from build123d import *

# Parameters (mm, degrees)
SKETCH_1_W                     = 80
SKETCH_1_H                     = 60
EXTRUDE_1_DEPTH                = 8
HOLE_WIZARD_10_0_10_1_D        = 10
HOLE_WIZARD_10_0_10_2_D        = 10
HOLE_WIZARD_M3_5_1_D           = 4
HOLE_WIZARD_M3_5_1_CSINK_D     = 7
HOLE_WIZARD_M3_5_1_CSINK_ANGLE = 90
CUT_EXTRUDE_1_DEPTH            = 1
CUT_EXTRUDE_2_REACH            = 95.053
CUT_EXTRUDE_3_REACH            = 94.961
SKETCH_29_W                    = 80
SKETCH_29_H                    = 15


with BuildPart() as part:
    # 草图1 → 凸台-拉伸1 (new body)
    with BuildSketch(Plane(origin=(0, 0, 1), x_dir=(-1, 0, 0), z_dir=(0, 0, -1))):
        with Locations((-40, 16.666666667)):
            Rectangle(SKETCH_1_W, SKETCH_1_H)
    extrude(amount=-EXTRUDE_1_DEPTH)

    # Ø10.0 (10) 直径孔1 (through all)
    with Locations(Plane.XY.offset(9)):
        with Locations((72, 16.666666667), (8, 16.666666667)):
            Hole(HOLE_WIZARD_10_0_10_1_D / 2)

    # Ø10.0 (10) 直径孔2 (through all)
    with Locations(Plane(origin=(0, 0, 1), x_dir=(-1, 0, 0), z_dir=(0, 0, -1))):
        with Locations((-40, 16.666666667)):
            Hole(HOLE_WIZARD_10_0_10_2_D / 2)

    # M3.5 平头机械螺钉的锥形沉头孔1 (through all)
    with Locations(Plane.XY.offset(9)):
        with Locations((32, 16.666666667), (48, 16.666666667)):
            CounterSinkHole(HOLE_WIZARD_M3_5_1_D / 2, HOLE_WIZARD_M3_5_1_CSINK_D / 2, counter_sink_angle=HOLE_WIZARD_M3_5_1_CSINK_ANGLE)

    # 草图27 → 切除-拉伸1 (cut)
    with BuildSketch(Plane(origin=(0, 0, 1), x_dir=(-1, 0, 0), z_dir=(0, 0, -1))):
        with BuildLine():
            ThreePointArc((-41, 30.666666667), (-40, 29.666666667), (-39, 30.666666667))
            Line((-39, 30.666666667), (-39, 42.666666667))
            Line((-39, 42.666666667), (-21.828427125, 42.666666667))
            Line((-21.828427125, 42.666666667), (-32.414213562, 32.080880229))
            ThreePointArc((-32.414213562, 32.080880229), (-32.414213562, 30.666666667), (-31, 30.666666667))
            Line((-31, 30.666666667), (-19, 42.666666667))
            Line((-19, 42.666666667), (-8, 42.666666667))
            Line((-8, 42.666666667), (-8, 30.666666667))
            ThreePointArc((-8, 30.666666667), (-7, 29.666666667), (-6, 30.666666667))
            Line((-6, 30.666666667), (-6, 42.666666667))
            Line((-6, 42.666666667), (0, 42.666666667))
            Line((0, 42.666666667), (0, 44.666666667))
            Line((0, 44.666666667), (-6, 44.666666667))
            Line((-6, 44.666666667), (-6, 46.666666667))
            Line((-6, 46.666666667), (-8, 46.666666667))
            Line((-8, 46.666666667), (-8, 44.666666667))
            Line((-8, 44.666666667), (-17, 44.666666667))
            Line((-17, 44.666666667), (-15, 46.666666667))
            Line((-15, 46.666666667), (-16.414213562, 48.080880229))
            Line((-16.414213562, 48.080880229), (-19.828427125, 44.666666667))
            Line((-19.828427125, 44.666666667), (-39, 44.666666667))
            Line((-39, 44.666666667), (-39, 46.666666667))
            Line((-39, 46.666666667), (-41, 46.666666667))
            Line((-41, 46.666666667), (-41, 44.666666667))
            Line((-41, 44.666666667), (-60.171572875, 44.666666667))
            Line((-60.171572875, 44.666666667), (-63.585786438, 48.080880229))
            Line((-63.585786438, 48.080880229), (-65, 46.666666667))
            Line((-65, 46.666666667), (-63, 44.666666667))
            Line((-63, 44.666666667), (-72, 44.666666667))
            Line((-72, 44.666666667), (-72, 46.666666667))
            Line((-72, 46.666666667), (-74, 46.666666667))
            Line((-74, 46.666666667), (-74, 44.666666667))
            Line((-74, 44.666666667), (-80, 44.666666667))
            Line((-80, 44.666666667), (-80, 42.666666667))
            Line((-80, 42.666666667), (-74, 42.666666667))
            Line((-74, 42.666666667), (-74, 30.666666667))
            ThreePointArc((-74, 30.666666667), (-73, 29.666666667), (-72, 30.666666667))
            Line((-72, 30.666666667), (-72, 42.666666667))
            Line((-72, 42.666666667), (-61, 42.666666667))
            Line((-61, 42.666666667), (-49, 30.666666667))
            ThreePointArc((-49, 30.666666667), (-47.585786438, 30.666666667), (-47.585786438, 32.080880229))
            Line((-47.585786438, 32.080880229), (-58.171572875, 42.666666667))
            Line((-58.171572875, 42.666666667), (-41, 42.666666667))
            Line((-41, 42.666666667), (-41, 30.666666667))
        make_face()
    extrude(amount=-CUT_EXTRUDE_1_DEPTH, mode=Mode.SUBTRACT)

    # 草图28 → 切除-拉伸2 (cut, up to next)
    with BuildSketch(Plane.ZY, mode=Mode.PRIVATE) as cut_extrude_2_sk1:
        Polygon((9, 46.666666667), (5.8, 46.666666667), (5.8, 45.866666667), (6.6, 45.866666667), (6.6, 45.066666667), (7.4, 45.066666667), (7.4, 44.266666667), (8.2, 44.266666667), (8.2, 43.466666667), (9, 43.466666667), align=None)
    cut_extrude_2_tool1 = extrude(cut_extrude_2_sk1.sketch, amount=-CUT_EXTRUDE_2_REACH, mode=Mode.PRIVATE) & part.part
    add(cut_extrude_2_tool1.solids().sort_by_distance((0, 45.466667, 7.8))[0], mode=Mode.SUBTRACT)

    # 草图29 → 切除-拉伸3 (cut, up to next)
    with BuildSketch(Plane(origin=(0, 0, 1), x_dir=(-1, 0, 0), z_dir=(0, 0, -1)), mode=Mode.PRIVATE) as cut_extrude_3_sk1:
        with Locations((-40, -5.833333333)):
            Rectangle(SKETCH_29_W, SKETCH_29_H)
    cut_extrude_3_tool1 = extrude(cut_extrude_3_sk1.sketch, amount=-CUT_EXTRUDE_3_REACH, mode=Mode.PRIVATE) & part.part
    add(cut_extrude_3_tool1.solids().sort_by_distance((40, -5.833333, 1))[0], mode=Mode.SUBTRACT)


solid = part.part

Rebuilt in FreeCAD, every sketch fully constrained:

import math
import FreeCAD as App
import Part
import Sketcher
Q = App.Units.Quantity


def add_polygon(sketch, points):
    """Adds a closed chain of lines whose ends are joined by coincident constraints."""
    first, n = sketch.GeometryCount, len(points)
    for a, b in zip(points, points[1:] + points[:1]):
        sketch.addGeometry(Part.LineSegment(App.Vector(*a, 0), App.Vector(*b, 0)), False)
    for i in range(n):
        sketch.addConstraint(Sketcher.Constraint("Coincident", first + i, 2, first + (i + 1) % n, 1))

doc = App.newDocument("Part")
params = doc.addObject("Spreadsheet::Sheet", "Params")
for row, (alias, value) in enumerate([
    ("sketch1_width", "80 mm"),
    ("sketch1_height", "60 mm"),
    ("pad1_length", "8 mm"),
    ("sketch2_diameter", "10 mm"),
    ("hole_diameter", "10 mm"),
    ("sketch3_diameter", "10 mm"),
    ("hole2_diameter", "10 mm"),
    ("sketch4_diameter", "4 mm"),
    ("hole3_diameter", "4 mm"),
    ("hole3_csink_diameter", "7 mm"),
    ("sketch5_radius", "1 mm"),
    ("sketch5_width", "11 mm"),
    ("sketch5_width2", "6 mm"),
    ("sketch5_width3", "9 mm"),
    ("sketch5_height", "12 mm"),
    ("pocket1_length", "1 mm"),
    ("sketch6_width", "0.8 mm"),
    ("sketch7_width", "80 mm"),
    ("sketch7_height", "15 mm"),
], start=1):
    params.set(f"A{row}", alias)
    params.set(f"B{row}", "=" + value)
    params.setAlias(f"B{row}", alias)

body = doc.addObject("PartDesign::Body", "Body")

sketch1 = doc.addObject("Sketcher::SketchObject", "Sketch")
body.addObject(sketch1)
sketch1.AttachmentSupport = (doc.XY_Plane, [""])
sketch1.MapMode = "FlatFace"
sketch1.AttachmentOffset = App.Placement(App.Vector(0, 0, 1), App.Rotation())
add_polygon(sketch1, [(80, 47), (80, -13), (0, -13), (0, 47)])
sketch1.addConstraint([
    Sketcher.Constraint("Vertical", 0),
    Sketcher.Constraint("Horizontal", 1),
    Sketcher.Constraint("Vertical", 2),
    Sketcher.Constraint("Horizontal", 3),
    Sketcher.Constraint("PointOnObject", 1, 2, -2),
    Sketcher.Constraint("DistanceX", 1, 2, 1, 1, Q("80 mm")),
    Sketcher.Constraint("DistanceY", 0, 2, 0, 1, Q("60 mm")),
    Sketcher.Constraint("DistanceY", 0, 2, -1, 1, Q("13.333333 mm")),
])
sketch1.setExpression("Constraints[9]", "Params.sketch1_width")
sketch1.setExpression("Constraints[10]", "Params.sketch1_height")
pad1 = doc.addObject("PartDesign::Pad", "Pad")
body.addObject(pad1)
pad1.Profile = sketch1
pad1.setExpression("Length", "Params.pad1_length")

sketch2 = doc.addObject("Sketcher::SketchObject", "Sketch001")
body.addObject(sketch2)
sketch2.AttachmentSupport = (doc.XY_Plane, [""])
sketch2.MapMode = "FlatFace"
sketch2.AttachmentOffset = App.Placement(App.Vector(0, 0, 9), App.Rotation())
sketch2.addGeometry([
    Part.Circle(App.Vector(72, 17, 0), App.Vector(0, 0, 1), 5),
    Part.Circle(App.Vector(8, 17, 0), App.Vector(0, 0, 1), 5),
], False)
sketch2.addConstraint([
    Sketcher.Constraint("Equal", 0, 1),
    Sketcher.Constraint("Horizontal", 0, 3, 1, 3),
    Sketcher.Constraint("Diameter", 0, Q("10 mm")),
    Sketcher.Constraint("DistanceX", -1, 1, 0, 3, Q("72 mm")),
    Sketcher.Constraint("DistanceX", -1, 1, 1, 3, Q("8 mm")),
    Sketcher.Constraint("DistanceY", -1, 1, 0, 3, Q("16.666667 mm")),
])
sketch2.setExpression("Constraints[2]", "Params.sketch2_diameter")
doc.recompute()
hole = doc.addObject("PartDesign::Hole", "Hole")
body.addObject(hole)
hole.Profile = sketch2
hole.ThreadType = "None"
hole.setExpression("Diameter", "Params.hole_diameter")
hole.DepthType = "ThroughAll"

sketch3 = doc.addObject("Sketcher::SketchObject", "Sketch002")
body.addObject(sketch3)
sketch3.AttachmentSupport = (doc.XY_Plane, [""])
sketch3.MapMode = "FlatFace"
sketch3.AttachmentOffset = App.Placement(App.Vector(0, 0, 1), App.Rotation())
sketch3.addGeometry(Part.Circle(App.Vector(40, 17, 0), App.Vector(0, 0, 1), 5), False)
sketch3.addConstraint([
    Sketcher.Constraint("Diameter", 0, Q("10 mm")),
    Sketcher.Constraint("DistanceX", -1, 1, 0, 3, Q("40 mm")),
    Sketcher.Constraint("DistanceY", -1, 1, 0, 3, Q("16.666667 mm")),
])
sketch3.setExpression("Constraints[0]", "Params.sketch3_diameter")
doc.recompute()
hole2 = doc.addObject("PartDesign::Hole", "Hole001")
body.addObject(hole2)
hole2.Profile = sketch3
hole2.ThreadType = "None"
hole2.setExpression("Diameter", "Params.hole2_diameter")
hole2.DepthType = "ThroughAll"
hole2.Reversed = True

sketch4 = doc.addObject("Sketcher::SketchObject", "Sketch003")
body.addObject(sketch4)
sketch4.AttachmentSupport = (doc.XY_Plane, [""])
sketch4.MapMode = "FlatFace"
sketch4.AttachmentOffset = App.Placement(App.Vector(0, 0, 9), App.Rotation())
sketch4.addGeometry([
    Part.Circle(App.Vector(32, 16.7, 0), App.Vector(0, 0, 1), 2),
    Part.Circle(App.Vector(48, 16.7, 0), App.Vector(0, 0, 1), 2),
], False)
sketch4.addConstraint([
    Sketcher.Constraint("Equal", 0, 1),
    Sketcher.Constraint("Horizontal", 0, 3, 1, 3),
    Sketcher.Constraint("Diameter", 0, Q("4 mm")),
    Sketcher.Constraint("DistanceX", -1, 1, 0, 3, Q("32 mm")),
    Sketcher.Constraint("DistanceX", -1, 1, 1, 3, Q("48 mm")),
    Sketcher.Constraint("DistanceY", -1, 1, 0, 3, Q("16.666667 mm")),
])
sketch4.setExpression("Constraints[2]", "Params.sketch4_diameter")
doc.recompute()
hole3 = doc.addObject("PartDesign::Hole", "Hole002")
body.addObject(hole3)
hole3.Profile = sketch4
hole3.ThreadType = "None"
hole3.setExpression("Diameter", "Params.hole3_diameter")
hole3.DepthType = "ThroughAll"
hole3.HoleCutType = "Countersink"
hole3.setExpression("HoleCutDiameter", "Params.hole3_csink_diameter")
hole3.HoleCutCountersinkAngle = 90

sketch5 = doc.addObject("Sketcher::SketchObject", "Sketch004")
body.addObject(sketch5)
sketch5.AttachmentSupport = (doc.XY_Plane, [""])
sketch5.MapMode = "FlatFace"
sketch5.AttachmentOffset = App.Placement(App.Vector(0, 0, 1), App.Rotation())
sketch5.addGeometry([
    Part.ArcOfCircle(Part.Circle(App.Vector(40, 30.7, 0), App.Vector(0, 0, 1), 1), math.radians(180), math.radians(360)),
    Part.LineSegment(App.Vector(39, 30.7, 0), App.Vector(39, 42.7, 0)),
    Part.LineSegment(App.Vector(39, 42.7, 0), App.Vector(21.8, 42.7, 0)),
    Part.LineSegment(App.Vector(21.8, 42.7, 0), App.Vector(32.4, 32.1, 0)),
    Part.ArcOfCircle(Part.Circle(App.Vector(31.7, 31.4, 0), App.Vector(0, 0, 1), 1), math.radians(-135), math.radians(45)),
    Part.LineSegment(App.Vector(31, 30.7, 0), App.Vector(19, 42.7, 0)),
    Part.LineSegment(App.Vector(19, 42.7, 0), App.Vector(8, 42.7, 0)),
    Part.LineSegment(App.Vector(8, 42.7, 0), App.Vector(8, 30.7, 0)),
    Part.ArcOfCircle(Part.Circle(App.Vector(7, 30.7, 0), App.Vector(0, 0, 1), 1), math.radians(180), math.radians(360)),
    Part.LineSegment(App.Vector(6, 30.7, 0), App.Vector(6, 42.7, 0)),
    Part.LineSegment(App.Vector(6, 42.7, 0), App.Vector(0, 42.7, 0)),
    Part.LineSegment(App.Vector(0, 42.7, 0), App.Vector(0, 44.7, 0)),
    Part.LineSegment(App.Vector(0, 44.7, 0), App.Vector(6, 44.7, 0)),
    Part.LineSegment(App.Vector(6, 44.7, 0), App.Vector(6, 46.7, 0)),
    Part.LineSegment(App.Vector(6, 46.7, 0), App.Vector(8, 46.7, 0)),
    Part.LineSegment(App.Vector(8, 46.7, 0), App.Vector(8, 44.7, 0)),
    Part.LineSegment(App.Vector(8, 44.7, 0), App.Vector(17, 44.7, 0)),
    Part.LineSegment(App.Vector(17, 44.7, 0), App.Vector(15, 46.7, 0)),
    Part.LineSegment(App.Vector(15, 46.7, 0), App.Vector(16.4, 48.1, 0)),
    Part.LineSegment(App.Vector(16.4, 48.1, 0), App.Vector(19.8, 44.7, 0)),
    Part.LineSegment(App.Vector(19.8, 44.7, 0), App.Vector(39, 44.7, 0)),
    Part.LineSegment(App.Vector(39, 44.7, 0), App.Vector(39, 46.7, 0)),
    Part.LineSegment(App.Vector(39, 46.7, 0), App.Vector(41, 46.7, 0)),
    Part.LineSegment(App.Vector(41, 46.7, 0), App.Vector(41, 44.7, 0)),
    Part.LineSegment(App.Vector(41, 44.7, 0), App.Vector(60.2, 44.7, 0)),
    Part.LineSegment(App.Vector(60.2, 44.7, 0), App.Vector(63.6, 48.1, 0)),
    Part.LineSegment(App.Vector(63.6, 48.1, 0), App.Vector(65, 46.7, 0)),
    Part.LineSegment(App.Vector(65, 46.7, 0), App.Vector(63, 44.7, 0)),
    Part.LineSegment(App.Vector(63, 44.7, 0), App.Vector(72, 44.7, 0)),
    Part.LineSegment(App.Vector(72, 44.7, 0), App.Vector(72, 46.7, 0)),
    Part.LineSegment(App.Vector(72, 46.7, 0), App.Vector(74, 46.7, 0)),
    Part.LineSegment(App.Vector(74, 46.7, 0), App.Vector(74, 44.7, 0)),
    Part.LineSegment(App.Vector(74, 44.7, 0), App.Vector(80, 44.7, 0)),
    Part.LineSegment(App.Vector(80, 44.7, 0), App.Vector(80, 42.7, 0)),
    Part.LineSegment(App.Vector(80, 42.7, 0), App.Vector(74, 42.7, 0)),
    Part.LineSegment(App.Vector(74, 42.7, 0), App.Vector(74, 30.7, 0)),
    Part.ArcOfCircle(Part.Circle(App.Vector(73, 30.7, 0), App.Vector(0, 0, 1), 1), math.radians(180), math.radians(360)),
    Part.LineSegment(App.Vector(72, 30.7, 0), App.Vector(72, 42.7, 0)),
    Part.LineSegment(App.Vector(72, 42.7, 0), App.Vector(61, 42.7, 0)),
    Part.LineSegment(App.Vector(61, 42.7, 0), App.Vector(49, 30.7, 0)),
    Part.ArcOfCircle(Part.Circle(App.Vector(48.3, 31.4, 0), App.Vector(0, 0, 1), 1), math.radians(135), math.radians(315)),
    Part.LineSegment(App.Vector(47.6, 32.1, 0), App.Vector(58.2, 42.7, 0)),
    Part.LineSegment(App.Vector(58.2, 42.7, 0), App.Vector(41, 42.7, 0)),
    Part.LineSegment(App.Vector(41, 42.7, 0), App.Vector(41, 30.7, 0)),
], False)
sketch5.addConstraint([
    Sketcher.Constraint("Tangent", 0, 1, 1, 1),
    Sketcher.Constraint("Coincident", 1, 2, 2, 1),
    Sketcher.Constraint("Coincident", 2, 2, 3, 1),
    Sketcher.Constraint("Tangent", 3, 2, 4, 2),
    Sketcher.Constraint("Tangent", 4, 1, 5, 1),
    Sketcher.Constraint("Coincident", 5, 2, 6, 1),
    Sketcher.Constraint("Coincident", 6, 2, 7, 1),
    Sketcher.Constraint("Tangent", 7, 2, 8, 2),
    Sketcher.Constraint("Tangent", 8, 1, 9, 1),
    Sketcher.Constraint("Coincident", 9, 2, 10, 1),
    Sketcher.Constraint("Coincident", 10, 2, 11, 1),
    Sketcher.Constraint("Coincident", 11, 2, 12, 1),
    Sketcher.Constraint("Coincident", 12, 2, 13, 1),
    Sketcher.Constraint("Coincident", 13, 2, 14, 1),
    Sketcher.Constraint("Coincident", 14, 2, 15, 1),
    Sketcher.Constraint("Coincident", 15, 2, 16, 1),
    Sketcher.Constraint("Coincident", 16, 2, 17, 1),
    Sketcher.Constraint("Coincident", 17, 2, 18, 1),
    Sketcher.Constraint("Coincident", 18, 2, 19, 1),
    Sketcher.Constraint("Coincident", 19, 2, 20, 1),
    Sketcher.Constraint("Coincident", 20, 2, 21, 1),
    Sketcher.Constraint("Coincident", 21, 2, 22, 1),
    Sketcher.Constraint("Coincident", 22, 2, 23, 1),
    Sketcher.Constraint("Coincident", 23, 2, 24, 1),
    Sketcher.Constraint("Coincident", 24, 2, 25, 1),
    Sketcher.Constraint("Coincident", 25, 2, 26, 1),
    Sketcher.Constraint("Coincident", 26, 2, 27, 1),
    Sketcher.Constraint("Coincident", 27, 2, 28, 1),
    Sketcher.Constraint("Coincident", 28, 2, 29, 1),
    Sketcher.Constraint("Coincident", 29, 2, 30, 1),
    Sketcher.Constraint("Coincident", 30, 2, 31, 1),
    Sketcher.Constraint("Coincident", 31, 2, 32, 1),
    Sketcher.Constraint("Coincident", 32, 2, 33, 1),
    Sketcher.Constraint("Coincident", 33, 2, 34, 1),
    Sketcher.Constraint("Coincident", 34, 2, 35, 1),
    Sketcher.Constraint("Tangent", 35, 2, 36, 2),
    Sketcher.Constraint("Tangent", 36, 1, 37, 1),
    Sketcher.Constraint("Coincident", 37, 2, 38, 1),
    Sketcher.Constraint("Coincident", 38, 2, 39, 1),
    Sketcher.Constraint("Tangent", 39, 2, 40, 2),
    Sketcher.Constraint("Tangent", 40, 1, 41, 1),
    Sketcher.Constraint("Coincident", 41, 2, 42, 1),
    Sketcher.Constraint("Coincident", 42, 2, 43, 1),
    Sketcher.Constraint("Tangent", 43, 2, 0, 2),
    Sketcher.Constraint("Vertical", 1),
    Sketcher.Constraint("Horizontal", 2),
    Sketcher.Constraint("Horizontal", 6),
    Sketcher.Constraint("Vertical", 7),
    Sketcher.Constraint("Vertical", 9),
    Sketcher.Constraint("Horizontal", 10),
    Sketcher.Constraint("Vertical", 11),
    Sketcher.Constraint("Horizontal", 12),
    Sketcher.Constraint("Vertical", 13),
    Sketcher.Constraint("Horizontal", 14),
    Sketcher.Constraint("Vertical", 15),
    Sketcher.Constraint("Horizontal", 16),
    Sketcher.Constraint("Horizontal", 20),
    Sketcher.Constraint("Vertical", 21),
    Sketcher.Constraint("Horizontal", 22),
    Sketcher.Constraint("Vertical", 23),
    Sketcher.Constraint("Horizontal", 24),
    Sketcher.Constraint("Horizontal", 28),
    Sketcher.Constraint("Vertical", 29),
    Sketcher.Constraint("Horizontal", 30),
    Sketcher.Constraint("Vertical", 31),
    Sketcher.Constraint("Horizontal", 32),
    Sketcher.Constraint("Vertical", 33),
    Sketcher.Constraint("Horizontal", 34),
    Sketcher.Constraint("Vertical", 35),
    Sketcher.Constraint("Vertical", 37),
    Sketcher.Constraint("Horizontal", 38),
    Sketcher.Constraint("Horizontal", 42),
    Sketcher.Constraint("Vertical", 43),
    Sketcher.Constraint("Equal", 0, 4),
    Sketcher.Constraint("Equal", 4, 8),
    Sketcher.Constraint("Equal", 8, 36),
    Sketcher.Constraint("Equal", 36, 40),
    Sketcher.Constraint("PointOnObject", 10, 2, -2),
    Sketcher.Constraint("Parallel", 3, 5),
    Sketcher.Constraint("Parallel", 5, 17),
    Sketcher.Constraint("Perpendicular", 17, 18),
    Sketcher.Constraint("Perpendicular", 18, 19),
    Sketcher.Constraint("Perpendicular", 19, 25),
    Sketcher.Constraint("Perpendicular", 25, 26),
    Sketcher.Constraint("Perpendicular", 26, 27),
    Sketcher.Constraint("Parallel", 27, 39),
    Sketcher.Constraint("Parallel", 39, 41),
    Sketcher.Constraint("Horizontal", 0, 3, 8, 3),
    Sketcher.Constraint("Horizontal", 8, 3, 36, 3),
    Sketcher.Constraint("Horizontal", 4, 3, 40, 3),
    Sketcher.Constraint("Horizontal", 0, 1, 4, 1),
    Sketcher.Constraint("Horizontal", 2, 2, 5, 2),
    Sketcher.Constraint("Horizontal", 6, 2, 9, 2),
    Sketcher.Constraint("Horizontal", 12, 2, 15, 2),
    Sketcher.Constraint("Horizontal", 14, 2, 17, 2),
    Sketcher.Constraint("Horizontal", 16, 2, 19, 2),
    Sketcher.Constraint("Horizontal", 17, 2, 21, 2),
    Sketcher.Constraint("Horizontal", 20, 2, 23, 2),
    Sketcher.Constraint("Horizontal", 18, 2, 25, 2),
    Sketcher.Constraint("Horizontal", 22, 2, 26, 2),
    Sketcher.Constraint("Horizontal", 24, 2, 27, 2),
    Sketcher.Constraint("Horizontal", 26, 2, 29, 2),
    Sketcher.Constraint("Horizontal", 28, 2, 31, 2),
    Sketcher.Constraint("Horizontal", 10, 2, 33, 2),
    Sketcher.Constraint("Horizontal", 34, 2, 37, 2),
    Sketcher.Constraint("Horizontal", 36, 1, 39, 2),
    Sketcher.Constraint("Horizontal", 38, 2, 41, 2),
    Sketcher.Constraint("Vertical", 9, 2, 12, 2),
    Sketcher.Constraint("Vertical", 7, 2, 14, 2),
    Sketcher.Constraint("Vertical", 1, 2, 20, 2),
    Sketcher.Constraint("Vertical", 31, 2, 34, 2),
    Sketcher.Constraint("Vertical", 29, 2, 36, 1),
    Sketcher.Constraint("Vertical", 23, 2, 42, 2),
    Sketcher.Constraint("Equal", 20, 24),
    Sketcher.Constraint("Equal", 16, 28),
    Sketcher.Constraint("Equal", 12, 32),
    Sketcher.Constraint("Equal", 6, 38),
    Sketcher.Constraint("Equal", 30, 11),
    Sketcher.Constraint("Equal", 11, 13),
    Sketcher.Constraint("Radius", 0, Q("1 mm")),
    Sketcher.Constraint("DistanceX", 6, 2, 6, 1, Q("11 mm")),
    Sketcher.Constraint("DistanceX", 10, 2, 10, 1, Q("6 mm")),
    Sketcher.Constraint("DistanceX", 16, 1, 16, 2, Q("9 mm")),
    Sketcher.Constraint("DistanceY", 1, 1, 1, 2, Q("12 mm")),
    Sketcher.Constraint("Distance", 18, Q("2 mm")),
    Sketcher.Constraint("DistanceX", -1, 1, 0, 3, Q("40 mm")),
    Sketcher.Constraint("DistanceY", -1, 1, 3, 2, Q("32.08088 mm")),
])
sketch5.setExpression("Constraints[119]", "Params.sketch5_radius")
sketch5.setExpression("Constraints[120]", "Params.sketch5_width")
sketch5.setExpression("Constraints[121]", "Params.sketch5_width2")
sketch5.setExpression("Constraints[122]", "Params.sketch5_width3")
sketch5.setExpression("Constraints[123]", "Params.sketch5_height")
pocket1 = doc.addObject("PartDesign::Pocket", "Pocket")
body.addObject(pocket1)
pocket1.Profile = sketch5
pocket1.setExpression("Length", "Params.pocket1_length")
pocket1.Reversed = True

sketch6 = doc.addObject("Sketcher::SketchObject", "Sketch005")
body.addObject(sketch6)
sketch6.AttachmentSupport = (doc.YZ_Plane, [""])
sketch6.MapMode = "FlatFace"
add_polygon(sketch6, [(46.7, 9), (46.7, 5.8), (45.9, 5.8), (45.9, 6.6), (45.1, 6.6), (45.1, 7.4), (44.3, 7.4), (44.3, 8.2), (43.5, 8.2), (43.5, 9)])
sketch6.addConstraint([
    Sketcher.Constraint("Vertical", 0),
    Sketcher.Constraint("Horizontal", 1),
    Sketcher.Constraint("Vertical", 2),
    Sketcher.Constraint("Horizontal", 3),
    Sketcher.Constraint("Vertical", 4),
    Sketcher.Constraint("Horizontal", 5),
    Sketcher.Constraint("Vertical", 6),
    Sketcher.Constraint("Horizontal", 7),
    Sketcher.Constraint("Vertical", 8),
    Sketcher.Constraint("Horizontal", 9),
    Sketcher.Constraint("Equal", 1, 3),
    Sketcher.Constraint("Equal", 3, 5),
    Sketcher.Constraint("Equal", 5, 7),
    Sketcher.Constraint("Equal", 9, 0),
    Sketcher.Constraint("Equal", 7, 2),
    Sketcher.Constraint("Equal", 2, 4),
    Sketcher.Constraint("Equal", 4, 6),
    Sketcher.Constraint("DistanceX", 1, 2, 1, 1, Q("0.8 mm")),
    Sketcher.Constraint("DistanceY", -1, 1, 8, 2, Q("9 mm")),
    Sketcher.Constraint("DistanceX", -1, 1, 0, 2, Q("46.666667 mm")),
])
sketch6.setExpression("Constraints[27]", "Params.sketch6_width")
pocket2 = doc.addObject("PartDesign::Pocket", "Pocket001")
body.addObject(pocket2)
pocket2.Profile = sketch6
pocket2.Type = "UpToFirst"
pocket2.Reversed = True

sketch7 = doc.addObject("Sketcher::SketchObject", "Sketch006")
body.addObject(sketch7)
sketch7.AttachmentSupport = (doc.XY_Plane, [""])
sketch7.MapMode = "FlatFace"
sketch7.AttachmentOffset = App.Placement(App.Vector(0, 0, 1), App.Rotation())
add_polygon(sketch7, [(80, 2), (80, -13), (0, -13), (0, 2)])
sketch7.addConstraint([
    Sketcher.Constraint("Vertical", 0),
    Sketcher.Constraint("Horizontal", 1),
    Sketcher.Constraint("Vertical", 2),
    Sketcher.Constraint("Horizontal", 3),
    Sketcher.Constraint("PointOnObject", 1, 2, -2),
    Sketcher.Constraint("DistanceX", 1, 2, 1, 1, Q("80 mm")),
    Sketcher.Constraint("DistanceY", 0, 2, 0, 1, Q("15 mm")),
    Sketcher.Constraint("DistanceY", 0, 2, -1, 1, Q("13.333333 mm")),
])
sketch7.setExpression("Constraints[9]", "Params.sketch7_width")
sketch7.setExpression("Constraints[10]", "Params.sketch7_height")
pocket3 = doc.addObject("PartDesign::Pocket", "Pocket002")
body.addObject(pocket3)
pocket3.Profile = sketch7
pocket3.Type = "UpToFirst"
pocket3.Reversed = True

doc.recompute()
